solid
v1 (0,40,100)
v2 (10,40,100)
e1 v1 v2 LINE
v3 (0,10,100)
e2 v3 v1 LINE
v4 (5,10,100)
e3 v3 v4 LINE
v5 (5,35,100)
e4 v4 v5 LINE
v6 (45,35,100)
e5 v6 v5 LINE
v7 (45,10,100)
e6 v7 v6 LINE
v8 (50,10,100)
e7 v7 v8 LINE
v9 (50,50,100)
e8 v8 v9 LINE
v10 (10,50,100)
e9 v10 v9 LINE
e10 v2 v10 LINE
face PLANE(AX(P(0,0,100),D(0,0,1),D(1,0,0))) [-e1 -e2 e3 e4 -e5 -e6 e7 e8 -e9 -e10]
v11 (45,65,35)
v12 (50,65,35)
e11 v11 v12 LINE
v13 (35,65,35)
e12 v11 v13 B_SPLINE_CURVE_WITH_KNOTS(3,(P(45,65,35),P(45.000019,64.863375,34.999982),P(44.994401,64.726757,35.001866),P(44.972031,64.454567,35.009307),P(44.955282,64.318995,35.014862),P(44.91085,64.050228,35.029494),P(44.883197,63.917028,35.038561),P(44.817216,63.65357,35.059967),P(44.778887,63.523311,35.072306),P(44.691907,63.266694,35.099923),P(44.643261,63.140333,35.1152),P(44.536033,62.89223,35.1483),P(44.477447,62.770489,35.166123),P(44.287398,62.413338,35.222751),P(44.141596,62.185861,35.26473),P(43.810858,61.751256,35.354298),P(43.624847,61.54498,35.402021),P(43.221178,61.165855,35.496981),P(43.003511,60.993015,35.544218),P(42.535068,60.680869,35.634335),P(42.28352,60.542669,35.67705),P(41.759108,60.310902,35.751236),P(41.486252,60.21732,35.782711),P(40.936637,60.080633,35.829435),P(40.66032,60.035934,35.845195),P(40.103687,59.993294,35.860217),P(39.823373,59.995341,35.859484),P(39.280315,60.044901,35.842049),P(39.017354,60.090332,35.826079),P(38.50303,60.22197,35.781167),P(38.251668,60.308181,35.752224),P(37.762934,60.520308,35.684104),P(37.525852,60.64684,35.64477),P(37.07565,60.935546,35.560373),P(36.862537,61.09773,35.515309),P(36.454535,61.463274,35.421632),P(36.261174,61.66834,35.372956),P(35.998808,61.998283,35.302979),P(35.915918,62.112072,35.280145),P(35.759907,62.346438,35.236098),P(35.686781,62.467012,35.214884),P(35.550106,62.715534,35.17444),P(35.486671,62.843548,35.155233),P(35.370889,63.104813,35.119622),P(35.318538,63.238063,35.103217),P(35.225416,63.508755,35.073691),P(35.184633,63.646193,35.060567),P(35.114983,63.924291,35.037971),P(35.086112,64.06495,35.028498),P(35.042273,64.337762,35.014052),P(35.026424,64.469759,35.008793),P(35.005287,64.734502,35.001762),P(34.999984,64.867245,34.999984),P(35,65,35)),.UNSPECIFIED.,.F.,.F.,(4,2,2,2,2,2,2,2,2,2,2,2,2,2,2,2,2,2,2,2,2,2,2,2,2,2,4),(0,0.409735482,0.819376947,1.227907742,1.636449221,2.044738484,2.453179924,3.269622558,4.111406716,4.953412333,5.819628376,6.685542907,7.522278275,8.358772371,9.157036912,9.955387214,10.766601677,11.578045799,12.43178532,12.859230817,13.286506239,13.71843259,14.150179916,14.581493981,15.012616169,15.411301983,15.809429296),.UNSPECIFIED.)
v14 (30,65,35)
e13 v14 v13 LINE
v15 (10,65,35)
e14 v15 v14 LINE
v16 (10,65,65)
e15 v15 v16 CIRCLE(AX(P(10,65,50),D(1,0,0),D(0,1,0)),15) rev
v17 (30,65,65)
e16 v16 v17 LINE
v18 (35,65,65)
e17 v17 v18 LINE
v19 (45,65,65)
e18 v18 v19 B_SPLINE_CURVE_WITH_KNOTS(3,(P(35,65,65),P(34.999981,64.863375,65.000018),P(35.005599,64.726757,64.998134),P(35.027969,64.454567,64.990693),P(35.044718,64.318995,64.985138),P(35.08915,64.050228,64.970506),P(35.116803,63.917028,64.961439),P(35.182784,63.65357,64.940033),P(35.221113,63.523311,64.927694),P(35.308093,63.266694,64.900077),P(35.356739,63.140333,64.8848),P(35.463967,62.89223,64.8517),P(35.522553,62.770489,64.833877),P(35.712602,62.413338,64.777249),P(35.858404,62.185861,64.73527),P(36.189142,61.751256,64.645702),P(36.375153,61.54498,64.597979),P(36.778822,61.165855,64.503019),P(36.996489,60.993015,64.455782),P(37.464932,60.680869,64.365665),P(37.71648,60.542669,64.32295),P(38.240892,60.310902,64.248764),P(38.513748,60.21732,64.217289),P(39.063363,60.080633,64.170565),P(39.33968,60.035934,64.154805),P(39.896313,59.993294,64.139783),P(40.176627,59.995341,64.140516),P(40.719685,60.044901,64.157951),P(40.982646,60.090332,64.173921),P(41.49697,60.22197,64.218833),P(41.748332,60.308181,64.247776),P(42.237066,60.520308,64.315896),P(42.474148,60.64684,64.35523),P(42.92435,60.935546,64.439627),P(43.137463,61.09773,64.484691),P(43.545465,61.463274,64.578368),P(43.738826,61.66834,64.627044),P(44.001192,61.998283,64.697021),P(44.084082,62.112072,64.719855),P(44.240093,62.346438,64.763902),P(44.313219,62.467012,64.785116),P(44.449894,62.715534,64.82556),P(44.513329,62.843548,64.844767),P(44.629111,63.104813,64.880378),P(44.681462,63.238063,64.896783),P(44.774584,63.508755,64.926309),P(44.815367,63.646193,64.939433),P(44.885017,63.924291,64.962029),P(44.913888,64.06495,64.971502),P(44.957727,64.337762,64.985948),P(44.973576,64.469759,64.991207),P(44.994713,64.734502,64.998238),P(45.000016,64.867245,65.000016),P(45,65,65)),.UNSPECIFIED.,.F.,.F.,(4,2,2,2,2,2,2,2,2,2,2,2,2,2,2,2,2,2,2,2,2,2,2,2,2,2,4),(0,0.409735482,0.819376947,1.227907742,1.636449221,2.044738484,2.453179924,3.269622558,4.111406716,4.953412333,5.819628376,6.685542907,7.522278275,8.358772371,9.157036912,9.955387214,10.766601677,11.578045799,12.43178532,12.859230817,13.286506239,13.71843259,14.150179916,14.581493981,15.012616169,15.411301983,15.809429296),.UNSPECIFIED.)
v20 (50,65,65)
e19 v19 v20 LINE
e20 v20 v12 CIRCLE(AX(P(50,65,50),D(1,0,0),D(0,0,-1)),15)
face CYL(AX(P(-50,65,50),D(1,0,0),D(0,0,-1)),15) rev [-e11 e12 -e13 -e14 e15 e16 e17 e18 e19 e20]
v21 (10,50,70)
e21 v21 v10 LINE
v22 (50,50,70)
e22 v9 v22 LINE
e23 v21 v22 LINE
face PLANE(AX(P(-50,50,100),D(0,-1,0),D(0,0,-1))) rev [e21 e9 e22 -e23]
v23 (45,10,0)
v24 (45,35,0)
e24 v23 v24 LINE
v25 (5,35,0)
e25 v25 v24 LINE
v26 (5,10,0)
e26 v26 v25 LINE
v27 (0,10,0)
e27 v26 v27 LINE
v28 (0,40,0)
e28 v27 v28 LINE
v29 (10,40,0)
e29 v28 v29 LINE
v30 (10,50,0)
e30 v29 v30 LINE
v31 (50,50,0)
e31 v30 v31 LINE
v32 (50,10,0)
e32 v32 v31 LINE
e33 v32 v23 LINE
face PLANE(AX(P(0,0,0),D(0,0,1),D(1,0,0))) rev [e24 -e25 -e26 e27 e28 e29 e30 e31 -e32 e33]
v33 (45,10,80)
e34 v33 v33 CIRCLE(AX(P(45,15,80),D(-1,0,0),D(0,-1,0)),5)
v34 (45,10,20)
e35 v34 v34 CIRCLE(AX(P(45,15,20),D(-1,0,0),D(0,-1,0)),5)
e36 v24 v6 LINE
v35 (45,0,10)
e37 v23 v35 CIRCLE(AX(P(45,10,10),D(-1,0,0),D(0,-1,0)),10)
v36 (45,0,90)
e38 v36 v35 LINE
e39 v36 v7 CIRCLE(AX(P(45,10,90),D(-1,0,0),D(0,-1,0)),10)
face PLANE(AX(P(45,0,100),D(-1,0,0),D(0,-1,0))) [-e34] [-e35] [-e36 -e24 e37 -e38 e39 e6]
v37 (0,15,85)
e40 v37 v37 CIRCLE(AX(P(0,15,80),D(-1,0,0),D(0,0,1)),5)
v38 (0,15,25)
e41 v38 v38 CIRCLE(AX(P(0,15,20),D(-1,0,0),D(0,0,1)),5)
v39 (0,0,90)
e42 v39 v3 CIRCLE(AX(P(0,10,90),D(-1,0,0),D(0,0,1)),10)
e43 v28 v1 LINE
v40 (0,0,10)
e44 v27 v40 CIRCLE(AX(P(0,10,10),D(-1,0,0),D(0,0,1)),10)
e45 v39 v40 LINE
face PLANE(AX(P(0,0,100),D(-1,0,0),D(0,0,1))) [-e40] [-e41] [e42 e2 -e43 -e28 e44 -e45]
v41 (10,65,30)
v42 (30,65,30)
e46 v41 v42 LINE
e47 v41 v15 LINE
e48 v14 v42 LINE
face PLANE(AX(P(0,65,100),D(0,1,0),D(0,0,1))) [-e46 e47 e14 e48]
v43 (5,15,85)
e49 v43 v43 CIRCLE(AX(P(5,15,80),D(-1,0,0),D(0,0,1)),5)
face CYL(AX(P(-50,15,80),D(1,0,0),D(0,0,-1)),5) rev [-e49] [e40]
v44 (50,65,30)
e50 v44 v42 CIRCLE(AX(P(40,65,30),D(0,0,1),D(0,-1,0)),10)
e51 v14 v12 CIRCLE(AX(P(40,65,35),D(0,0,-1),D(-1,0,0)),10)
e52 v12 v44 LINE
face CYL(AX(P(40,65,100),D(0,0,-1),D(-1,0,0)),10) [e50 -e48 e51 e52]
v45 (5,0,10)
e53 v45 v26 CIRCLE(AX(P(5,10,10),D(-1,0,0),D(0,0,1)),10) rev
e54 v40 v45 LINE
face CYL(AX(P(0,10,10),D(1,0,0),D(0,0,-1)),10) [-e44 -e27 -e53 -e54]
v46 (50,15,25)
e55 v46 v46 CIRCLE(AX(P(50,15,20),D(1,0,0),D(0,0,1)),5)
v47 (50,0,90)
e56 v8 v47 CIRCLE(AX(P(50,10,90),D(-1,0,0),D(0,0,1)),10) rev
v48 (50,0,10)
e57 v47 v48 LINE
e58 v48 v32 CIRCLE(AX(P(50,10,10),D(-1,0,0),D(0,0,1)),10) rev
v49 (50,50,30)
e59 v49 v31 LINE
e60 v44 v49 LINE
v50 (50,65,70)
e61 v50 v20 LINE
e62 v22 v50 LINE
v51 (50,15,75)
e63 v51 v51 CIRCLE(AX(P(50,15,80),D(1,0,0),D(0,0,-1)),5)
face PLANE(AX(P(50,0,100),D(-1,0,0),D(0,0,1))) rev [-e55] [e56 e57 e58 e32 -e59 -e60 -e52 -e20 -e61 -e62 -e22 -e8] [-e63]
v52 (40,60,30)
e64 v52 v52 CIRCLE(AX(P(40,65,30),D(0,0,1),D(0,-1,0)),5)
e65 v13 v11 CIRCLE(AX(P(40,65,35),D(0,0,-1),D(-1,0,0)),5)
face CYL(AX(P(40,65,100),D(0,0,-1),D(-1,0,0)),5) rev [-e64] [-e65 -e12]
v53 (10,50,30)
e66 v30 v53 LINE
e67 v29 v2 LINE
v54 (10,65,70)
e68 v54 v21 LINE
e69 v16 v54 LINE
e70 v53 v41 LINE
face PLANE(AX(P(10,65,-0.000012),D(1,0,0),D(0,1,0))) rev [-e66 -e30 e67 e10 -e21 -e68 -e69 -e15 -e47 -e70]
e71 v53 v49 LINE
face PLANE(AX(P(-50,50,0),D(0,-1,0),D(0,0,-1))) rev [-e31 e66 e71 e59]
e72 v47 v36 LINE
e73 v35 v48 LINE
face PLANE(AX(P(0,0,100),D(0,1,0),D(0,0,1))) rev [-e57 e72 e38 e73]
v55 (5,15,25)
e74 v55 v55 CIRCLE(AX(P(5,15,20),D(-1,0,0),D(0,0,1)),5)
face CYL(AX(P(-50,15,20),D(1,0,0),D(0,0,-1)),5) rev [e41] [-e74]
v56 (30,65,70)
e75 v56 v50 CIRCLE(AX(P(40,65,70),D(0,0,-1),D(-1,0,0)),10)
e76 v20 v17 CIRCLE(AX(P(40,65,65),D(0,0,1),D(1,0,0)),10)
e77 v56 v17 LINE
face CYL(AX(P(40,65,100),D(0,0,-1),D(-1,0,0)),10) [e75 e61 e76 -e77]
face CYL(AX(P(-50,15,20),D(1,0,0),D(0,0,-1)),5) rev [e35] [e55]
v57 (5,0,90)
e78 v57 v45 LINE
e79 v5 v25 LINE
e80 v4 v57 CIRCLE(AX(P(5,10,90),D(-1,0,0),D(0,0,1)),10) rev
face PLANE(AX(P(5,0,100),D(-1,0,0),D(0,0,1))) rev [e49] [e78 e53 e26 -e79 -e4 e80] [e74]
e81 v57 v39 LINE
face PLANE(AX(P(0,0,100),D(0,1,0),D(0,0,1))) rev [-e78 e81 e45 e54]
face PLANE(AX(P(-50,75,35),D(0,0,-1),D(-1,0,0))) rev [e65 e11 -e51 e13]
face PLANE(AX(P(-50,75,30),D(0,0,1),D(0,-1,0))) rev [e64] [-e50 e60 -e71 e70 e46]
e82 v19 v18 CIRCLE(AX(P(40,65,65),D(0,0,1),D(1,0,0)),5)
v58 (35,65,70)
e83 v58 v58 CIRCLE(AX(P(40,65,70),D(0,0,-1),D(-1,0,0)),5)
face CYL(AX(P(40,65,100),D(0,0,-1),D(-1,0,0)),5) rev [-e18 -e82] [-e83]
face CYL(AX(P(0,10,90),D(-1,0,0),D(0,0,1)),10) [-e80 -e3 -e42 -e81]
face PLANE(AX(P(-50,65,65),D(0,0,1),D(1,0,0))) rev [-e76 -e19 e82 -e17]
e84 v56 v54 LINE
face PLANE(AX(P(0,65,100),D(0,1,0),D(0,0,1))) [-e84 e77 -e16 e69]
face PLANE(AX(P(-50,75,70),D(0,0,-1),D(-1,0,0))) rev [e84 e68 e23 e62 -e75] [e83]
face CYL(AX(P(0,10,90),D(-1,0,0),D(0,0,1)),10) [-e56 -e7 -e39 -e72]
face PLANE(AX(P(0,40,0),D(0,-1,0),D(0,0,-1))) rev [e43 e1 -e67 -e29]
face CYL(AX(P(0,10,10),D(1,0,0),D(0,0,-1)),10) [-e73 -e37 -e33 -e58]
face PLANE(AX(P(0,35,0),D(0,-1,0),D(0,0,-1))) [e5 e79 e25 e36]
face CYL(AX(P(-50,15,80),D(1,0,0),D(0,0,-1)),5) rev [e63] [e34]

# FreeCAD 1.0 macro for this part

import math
import FreeCAD as App
import Part
import Sketcher
Q = App.Units.Quantity


def edges_at(feature, points):
    """Names of the edges that pass closest to the given points."""
    edges = feature.Shape.Edges
    near = lambda p: min(range(len(edges)), key=lambda i: edges[i].distToShape(Part.Vertex(*p))[0])
    return sorted({f"Edge{near(p) + 1}" for p in points})

doc = App.newDocument("Part")
body = doc.addObject("PartDesign::Body", "Body")

sketch1 = body.newObject("Sketcher::SketchObject", "Sketch")
sketch1.AttachmentSupport = (doc.getObject("XY_Plane"), [""])
sketch1.MapMode = "FlatFace"
sketch1.addGeometry(Part.LineSegment(App.Vector(50, 0, 0), App.Vector(50, 65, 0)), False)
sketch1.addGeometry(Part.ArcOfCircle(Part.Circle(App.Vector(40, 65, 0), App.Vector(0, 0, 1), 10), math.radians(0), math.radians(180)), False)
sketch1.addGeometry(Part.LineSegment(App.Vector(30, 65, 0), App.Vector(0, 65, 0)), False)
sketch1.addGeometry(Part.LineSegment(App.Vector(0, 65, 0), App.Vector(0, 0, 0)), False)
sketch1.addGeometry(Part.LineSegment(App.Vector(0, 0, 0), App.Vector(5, 0, 0)), False)
sketch1.addGeometry(Part.LineSegment(App.Vector(5, 0, 0), App.Vector(5, 45, 0)), False)
sketch1.addGeometry(Part.LineSegment(App.Vector(5, 45, 0), App.Vector(45, 45, 0)), False)
sketch1.addGeometry(Part.LineSegment(App.Vector(45, 45, 0), App.Vector(45, 0, 0)), False)
sketch1.addGeometry(Part.LineSegment(App.Vector(45, 0, 0), App.Vector(50, 0, 0)), False)
sketch1.addGeometry(Part.Circle(App.Vector(40, 65, 0), App.Vector(0, 0, 1), 5), False)
sketch1.addConstraint(Sketcher.Constraint("Tangent", 0, 2, 1, 1))
sketch1.addConstraint(Sketcher.Constraint("Coincident", 1, 2, 2, 1))
sketch1.addConstraint(Sketcher.Constraint("Coincident", 2, 2, 3, 1))
sketch1.addConstraint(Sketcher.Constraint("Coincident", 3, 2, 4, 1))
sketch1.addConstraint(Sketcher.Constraint("Coincident", 4, 2, 5, 1))
sketch1.addConstraint(Sketcher.Constraint("Coincident", 5, 2, 6, 1))
sketch1.addConstraint(Sketcher.Constraint("Coincident", 6, 2, 7, 1))
sketch1.addConstraint(Sketcher.Constraint("Coincident", 7, 2, 8, 1))
sketch1.addConstraint(Sketcher.Constraint("Coincident", 8, 2, 0, 1))
sketch1.addConstraint(Sketcher.Constraint("Vertical", 0))
sketch1.addConstraint(Sketcher.Constraint("Horizontal", 2))
sketch1.addConstraint(Sketcher.Constraint("Vertical", 3))
sketch1.addConstraint(Sketcher.Constraint("Horizontal", 4))
sketch1.addConstraint(Sketcher.Constraint("Vertical", 5))
sketch1.addConstraint(Sketcher.Constraint("Horizontal", 6))
sketch1.addConstraint(Sketcher.Constraint("Vertical", 7))
sketch1.addConstraint(Sketcher.Constraint("Horizontal", 8))
sketch1.addConstraint(Sketcher.Constraint("Coincident", 3, 2, -1, 1))
sketch1.addConstraint(Sketcher.Constraint("Coincident", 9, 3, 1, 3))
sketch1.addConstraint(Sketcher.Constraint("PointOnObject", 7, 2, -1))
sketch1.addConstraint(Sketcher.Constraint("Horizontal", 0, 2, 1, 2))
sketch1.addConstraint(Sketcher.Constraint("Equal", 4, 8))
sketch1.addConstraint(Sketcher.Constraint("Diameter", 9, Q("10 mm")))
sketch1.addConstraint(Sketcher.Constraint("Radius", 1, Q("10 mm")))
sketch1.addConstraint(Sketcher.Constraint("DistanceX", 2, 2, 2, 1, Q("30 mm")))
sketch1.addConstraint(Sketcher.Constraint("DistanceX", 4, 1, 4, 2, Q("5 mm")))
sketch1.addConstraint(Sketcher.Constraint("DistanceY", 0, 1, 0, 2, Q("65 mm")))
sketch1.addConstraint(Sketcher.Constraint("DistanceY", 5, 1, 5, 2, Q("45 mm")))
pad1 = body.newObject("PartDesign::Pad", "Pad")
pad1.Profile = sketch1
pad1.Length = 100

sketch2 = body.newObject("Sketcher::SketchObject", "Sketch001")
sketch2.AttachmentSupport = (doc.getObject("YZ_Plane"), [""])
sketch2.MapMode = "FlatFace"
sketch2.AttachmentOffset = App.Placement(App.Vector(0, 0, 50), App.Rotation())
sketch2.addGeometry(Part.Circle(App.Vector(15, 80, 0), App.Vector(0, 0, 1), 5), False)
sketch2.addGeometry(Part.Circle(App.Vector(15, 20, 0), App.Vector(0, 0, 1), 5), False)
sketch2.addGeometry(Part.LineSegment(App.Vector(75, 65, 0), App.Vector(65, 65, 0)), False)
sketch2.addGeometry(Part.ArcOfCircle(Part.Circle(App.Vector(65, 50, 0), App.Vector(0, 0, 1), 15), math.radians(90), math.radians(270)), False)
sketch2.addGeometry(Part.LineSegment(App.Vector(65, 35, 0), App.Vector(75, 35, 0)), False)
sketch2.addGeometry(Part.LineSegment(App.Vector(75, 35, 0), App.Vector(75, 65, 0)), False)
sketch2.addGeometry(Part.LineSegment(App.Vector(75, 100, 0), App.Vector(50, 100, 0)), False)
sketch2.addGeometry(Part.LineSegment(App.Vector(50, 100, 0), App.Vector(50, 70, 0)), False)
sketch2.addGeometry(Part.LineSegment(App.Vector(50, 70, 0), App.Vector(75, 70, 0)), False)
sketch2.addGeometry(Part.LineSegment(App.Vector(75, 70, 0), App.Vector(75, 100, 0)), False)
sketch2.addGeometry(Part.LineSegment(App.Vector(75, 30, 0), App.Vector(50, 30, 0)), False)
sketch2.addGeometry(Part.LineSegment(App.Vector(50, 30, 0), App.Vector(50, 0, 0)), False)
sketch2.addGeometry(Part.LineSegment(App.Vector(50, 0, 0), App.Vector(75, 0, 0)), False)
sketch2.addGeometry(Part.LineSegment(App.Vector(75, 0, 0), App.Vector(75, 30, 0)), False)
sketch2.addConstraint(Sketcher.Constraint("Tangent", 2, 2, 3, 1))
sketch2.addConstraint(Sketcher.Constraint("Tangent", 3, 2, 4, 1))
sketch2.addConstraint(Sketcher.Constraint("Coincident", 4, 2, 5, 1))
sketch2.addConstraint(Sketcher.Constraint("Coincident", 5, 2, 2, 1))
sketch2.addConstraint(Sketcher.Constraint("Coincident", 6, 2, 7, 1))
sketch2.addConstraint(Sketcher.Constraint("Coincident", 7, 2, 8, 1))
sketch2.addConstraint(Sketcher.Constraint("Coincident", 8, 2, 9, 1))
sketch2.addConstraint(Sketcher.Constraint("Coincident", 9, 2, 6, 1))
sketch2.addConstraint(Sketcher.Constraint("Coincident", 10, 2, 11, 1))
sketch2.addConstraint(Sketcher.Constraint("Coincident", 11, 2, 12, 1))
sketch2.addConstraint(Sketcher.Constraint("Coincident", 12, 2, 13, 1))
sketch2.addConstraint(Sketcher.Constraint("Coincident", 13, 2, 10, 1))
sketch2.addConstraint(Sketcher.Constraint("Horizontal", 2))
sketch2.addConstraint(Sketcher.Constraint("Horizontal", 4))
sketch2.addConstraint(Sketcher.Constraint("Vertical", 5))
sketch2.addConstraint(Sketcher.Constraint("Horizontal", 6))
sketch2.addConstraint(Sketcher.Constraint("Vertical", 7))
sketch2.addConstraint(Sketcher.Constraint("Horizontal", 8))
sketch2.addConstraint(Sketcher.Constraint("Vertical", 9))
sketch2.addConstraint(Sketcher.Constraint("Horizontal", 10))
sketch2.addConstraint(Sketcher.Constraint("Vertical", 11))
sketch2.addConstraint(Sketcher.Constraint("Horizontal", 12))
sketch2.addConstraint(Sketcher.Constraint("Vertical", 13))
sketch2.addConstraint(Sketcher.Constraint("Equal", 0, 1))
sketch2.addConstraint(Sketcher.Constraint("PointOnObject", 11, 2, -1))
sketch2.addConstraint(Sketcher.Constraint("Vertical", 0, 3, 1, 3))
sketch2.addConstraint(Sketcher.Constraint("Vertical", 5, 2, 8, 2))
sketch2.addConstraint(Sketcher.Constraint("Vertical", 7, 2, 10, 2))
sketch2.addConstraint(Sketcher.Constraint("Vertical", 9, 2, 12, 2))
sketch2.addConstraint(Sketcher.Constraint("Equal", 5, 7))
sketch2.addConstraint(Sketcher.Constraint("Equal", 9, 11))
sketch2.addConstraint(Sketcher.Constraint("Diameter", 0, Q("10 mm")))
sketch2.addConstraint(Sketcher.Constraint("Radius", 3, Q("15 mm")))
sketch2.addConstraint(Sketcher.Constraint("DistanceX", 2, 2, 2, 1, Q("10 mm")))
sketch2.addConstraint(Sketcher.Constraint("DistanceX", 6, 2, 6, 1, Q("25 mm")))
sketch2.addConstraint(Sketcher.Constraint("DistanceX", -1, 1, 0, 3, Q("15 mm")))
sketch2.addConstraint(Sketcher.Constraint("DistanceY", -1, 1, 0, 3, Q("80 mm")))
sketch2.addConstraint(Sketcher.Constraint("DistanceY", -1, 1, 1, 3, Q("20 mm")))
sketch2.addConstraint(Sketcher.Constraint("DistanceX", -1, 1, 3, 3, Q("65 mm")))
sketch2.addConstraint(Sketcher.Constraint("DistanceY", -1, 1, 3, 3, Q("50 mm")))
sketch2.addConstraint(Sketcher.Constraint("DistanceY", -1, 1, 6, 2, Q("100 mm")))
pocket1 = body.newObject("PartDesign::Pocket", "Pocket")
pocket1.Profile = sketch2
pocket1.Length = 100
doc.recompute()

fillet = body.newObject("PartDesign::Fillet", "Fillet")
fillet.Base = (pocket1, edges_at(pocket1, [
    (47.5, 0, 0),
    (2.5, 0, 0),
    (2.5, 0, 100),
    (47.5, 0, 100),
]))
fillet.Radius = 10

sketch3 = body.newObject("Sketcher::SketchObject", "Sketch002")
sketch3.AttachmentSupport = (doc.getObject("XZ_Plane"), [""])
sketch3.MapMode = "FlatFace"
sketch3.AttachmentOffset = App.Placement(App.Vector(0, 0, -45), App.Rotation())
sketch3.addGeometry(Part.LineSegment(App.Vector(5, 100, 0), App.Vector(5, 0, 0)), False)
sketch3.addGeometry(Part.LineSegment(App.Vector(5, 0, 0), App.Vector(45, 0, 0)), False)
sketch3.addGeometry(Part.LineSegment(App.Vector(45, 0, 0), App.Vector(45, 100, 0)), False)
sketch3.addGeometry(Part.LineSegment(App.Vector(45, 100, 0), App.Vector(5, 100, 0)), False)
sketch3.addConstraint(Sketcher.Constraint("Coincident", 0, 2, 1, 1))
sketch3.addConstraint(Sketcher.Constraint("Coincident", 1, 2, 2, 1))
sketch3.addConstraint(Sketcher.Constraint("Coincident", 2, 2, 3, 1))
sketch3.addConstraint(Sketcher.Constraint("Coincident", 3, 2, 0, 1))
sketch3.addConstraint(Sketcher.Constraint("Vertical", 0))
sketch3.addConstraint(Sketcher.Constraint("Horizontal", 1))
sketch3.addConstraint(Sketcher.Constraint("Vertical", 2))
sketch3.addConstraint(Sketcher.Constraint("Horizontal", 3))
sketch3.addConstraint(Sketcher.Constraint("PointOnObject", 0, 2, -1))
sketch3.addConstraint(Sketcher.Constraint("DistanceX", 1, 1, 1, 2, Q("40 mm")))
sketch3.addConstraint(Sketcher.Constraint("DistanceY", 0, 2, 0, 1, Q("100 mm")))
sketch3.addConstraint(Sketcher.Constraint("DistanceX", -1, 1, 0, 2, Q("5 mm")))
pad2 = body.newObject("PartDesign::Pad", "Pad001")
pad2.Profile = sketch3
pad2.Length = 10

sketch4 = body.newObject("Sketcher::SketchObject", "Sketch003")
sketch4.AttachmentSupport = (doc.getObject("XY_Plane"), [""])
sketch4.MapMode = "FlatFace"
sketch4.addGeometry(Part.LineSegment(App.Vector(0, 65, 0), App.Vector(0, 45, 0)), False)
sketch4.addGeometry(Part.LineSegment(App.Vector(0, 45, 0), App.Vector(10, 45, 0)), False)
sketch4.addGeometry(Part.LineSegment(App.Vector(10, 45, 0), App.Vector(10, 65, 0)), False)
sketch4.addGeometry(Part.LineSegment(App.Vector(10, 65, 0), App.Vector(0, 65, 0)), False)
sketch4.addConstraint(Sketcher.Constraint("Coincident", 0, 2, 1, 1))
sketch4.addConstraint(Sketcher.Constraint("Coincident", 1, 2, 2, 1))
sketch4.addConstraint(Sketcher.Constraint("Coincident", 2, 2, 3, 1))
sketch4.addConstraint(Sketcher.Constraint("Coincident", 3, 2, 0, 1))
sketch4.addConstraint(Sketcher.Constraint("Vertical", 0))
sketch4.addConstraint(Sketcher.Constraint("Horizontal", 1))
sketch4.addConstraint(Sketcher.Constraint("Vertical", 2))
sketch4.addConstraint(Sketcher.Constraint("Horizontal", 3))
sketch4.addConstraint(Sketcher.Constraint("PointOnObject", 0, 2, -2))
sketch4.addConstraint(Sketcher.Constraint("DistanceX", 1, 1, 1, 2, Q("10 mm")))
sketch4.addConstraint(Sketcher.Constraint("DistanceY", 0, 2, 0, 1, Q("20 mm")))
sketch4.addConstraint(Sketcher.Constraint("DistanceY", -1, 1, 0, 2, Q("45 mm")))
pocket2 = body.newObject("PartDesign::Pocket", "Pocket001")
pocket2.Profile = sketch4
pocket2.Type = "ThroughAll"
pocket2.Midplane = True

sketch5 = body.newObject("Sketcher::SketchObject", "Sketch004")
sketch5.AttachmentSupport = (doc.getObject("XY_Plane"), [""])
sketch5.MapMode = "FlatFace"
sketch5.AttachmentOffset = App.Placement(App.Vector(0, 0, 100), App.Rotation())
sketch5.addGeometry(Part.LineSegment(App.Vector(0, 45, 0), App.Vector(0, 40, 0)), False)
sketch5.addGeometry(Part.LineSegment(App.Vector(0, 40, 0), App.Vector(10, 40, 0)), False)
sketch5.addGeometry(Part.LineSegment(App.Vector(10, 40, 0), App.Vector(10, 45, 0)), False)
sketch5.addGeometry(Part.LineSegment(App.Vector(10, 45, 0), App.Vector(0, 45, 0)), False)
sketch5.addConstraint(Sketcher.Constraint("Coincident", 0, 2, 1, 1))
sketch5.addConstraint(Sketcher.Constraint("Coincident", 1, 2, 2, 1))
sketch5.addConstraint(Sketcher.Constraint("Coincident", 2, 2, 3, 1))
sketch5.addConstraint(Sketcher.Constraint("Coincident", 3, 2, 0, 1))
sketch5.addConstraint(Sketcher.Constraint("Vertical", 0))
sketch5.addConstraint(Sketcher.Constraint("Horizontal", 1))
sketch5.addConstraint(Sketcher.Constraint("Vertical", 2))
sketch5.addConstraint(Sketcher.Constraint("Horizontal", 3))
sketch5.addConstraint(Sketcher.Constraint("PointOnObject", 0, 2, -2))
sketch5.addConstraint(Sketcher.Constraint("DistanceX", 1, 1, 1, 2, Q("10 mm")))
sketch5.addConstraint(Sketcher.Constraint("DistanceY", 0, 2, 0, 1, Q("5 mm")))
sketch5.addConstraint(Sketcher.Constraint("DistanceY", -1, 1, 0, 2, Q("40 mm")))
pocket3 = body.newObject("PartDesign::Pocket", "Pocket002")
pocket3.Profile = sketch5
pocket3.Type = "ThroughAll"
pocket3.Midplane = True

doc.recompute()
